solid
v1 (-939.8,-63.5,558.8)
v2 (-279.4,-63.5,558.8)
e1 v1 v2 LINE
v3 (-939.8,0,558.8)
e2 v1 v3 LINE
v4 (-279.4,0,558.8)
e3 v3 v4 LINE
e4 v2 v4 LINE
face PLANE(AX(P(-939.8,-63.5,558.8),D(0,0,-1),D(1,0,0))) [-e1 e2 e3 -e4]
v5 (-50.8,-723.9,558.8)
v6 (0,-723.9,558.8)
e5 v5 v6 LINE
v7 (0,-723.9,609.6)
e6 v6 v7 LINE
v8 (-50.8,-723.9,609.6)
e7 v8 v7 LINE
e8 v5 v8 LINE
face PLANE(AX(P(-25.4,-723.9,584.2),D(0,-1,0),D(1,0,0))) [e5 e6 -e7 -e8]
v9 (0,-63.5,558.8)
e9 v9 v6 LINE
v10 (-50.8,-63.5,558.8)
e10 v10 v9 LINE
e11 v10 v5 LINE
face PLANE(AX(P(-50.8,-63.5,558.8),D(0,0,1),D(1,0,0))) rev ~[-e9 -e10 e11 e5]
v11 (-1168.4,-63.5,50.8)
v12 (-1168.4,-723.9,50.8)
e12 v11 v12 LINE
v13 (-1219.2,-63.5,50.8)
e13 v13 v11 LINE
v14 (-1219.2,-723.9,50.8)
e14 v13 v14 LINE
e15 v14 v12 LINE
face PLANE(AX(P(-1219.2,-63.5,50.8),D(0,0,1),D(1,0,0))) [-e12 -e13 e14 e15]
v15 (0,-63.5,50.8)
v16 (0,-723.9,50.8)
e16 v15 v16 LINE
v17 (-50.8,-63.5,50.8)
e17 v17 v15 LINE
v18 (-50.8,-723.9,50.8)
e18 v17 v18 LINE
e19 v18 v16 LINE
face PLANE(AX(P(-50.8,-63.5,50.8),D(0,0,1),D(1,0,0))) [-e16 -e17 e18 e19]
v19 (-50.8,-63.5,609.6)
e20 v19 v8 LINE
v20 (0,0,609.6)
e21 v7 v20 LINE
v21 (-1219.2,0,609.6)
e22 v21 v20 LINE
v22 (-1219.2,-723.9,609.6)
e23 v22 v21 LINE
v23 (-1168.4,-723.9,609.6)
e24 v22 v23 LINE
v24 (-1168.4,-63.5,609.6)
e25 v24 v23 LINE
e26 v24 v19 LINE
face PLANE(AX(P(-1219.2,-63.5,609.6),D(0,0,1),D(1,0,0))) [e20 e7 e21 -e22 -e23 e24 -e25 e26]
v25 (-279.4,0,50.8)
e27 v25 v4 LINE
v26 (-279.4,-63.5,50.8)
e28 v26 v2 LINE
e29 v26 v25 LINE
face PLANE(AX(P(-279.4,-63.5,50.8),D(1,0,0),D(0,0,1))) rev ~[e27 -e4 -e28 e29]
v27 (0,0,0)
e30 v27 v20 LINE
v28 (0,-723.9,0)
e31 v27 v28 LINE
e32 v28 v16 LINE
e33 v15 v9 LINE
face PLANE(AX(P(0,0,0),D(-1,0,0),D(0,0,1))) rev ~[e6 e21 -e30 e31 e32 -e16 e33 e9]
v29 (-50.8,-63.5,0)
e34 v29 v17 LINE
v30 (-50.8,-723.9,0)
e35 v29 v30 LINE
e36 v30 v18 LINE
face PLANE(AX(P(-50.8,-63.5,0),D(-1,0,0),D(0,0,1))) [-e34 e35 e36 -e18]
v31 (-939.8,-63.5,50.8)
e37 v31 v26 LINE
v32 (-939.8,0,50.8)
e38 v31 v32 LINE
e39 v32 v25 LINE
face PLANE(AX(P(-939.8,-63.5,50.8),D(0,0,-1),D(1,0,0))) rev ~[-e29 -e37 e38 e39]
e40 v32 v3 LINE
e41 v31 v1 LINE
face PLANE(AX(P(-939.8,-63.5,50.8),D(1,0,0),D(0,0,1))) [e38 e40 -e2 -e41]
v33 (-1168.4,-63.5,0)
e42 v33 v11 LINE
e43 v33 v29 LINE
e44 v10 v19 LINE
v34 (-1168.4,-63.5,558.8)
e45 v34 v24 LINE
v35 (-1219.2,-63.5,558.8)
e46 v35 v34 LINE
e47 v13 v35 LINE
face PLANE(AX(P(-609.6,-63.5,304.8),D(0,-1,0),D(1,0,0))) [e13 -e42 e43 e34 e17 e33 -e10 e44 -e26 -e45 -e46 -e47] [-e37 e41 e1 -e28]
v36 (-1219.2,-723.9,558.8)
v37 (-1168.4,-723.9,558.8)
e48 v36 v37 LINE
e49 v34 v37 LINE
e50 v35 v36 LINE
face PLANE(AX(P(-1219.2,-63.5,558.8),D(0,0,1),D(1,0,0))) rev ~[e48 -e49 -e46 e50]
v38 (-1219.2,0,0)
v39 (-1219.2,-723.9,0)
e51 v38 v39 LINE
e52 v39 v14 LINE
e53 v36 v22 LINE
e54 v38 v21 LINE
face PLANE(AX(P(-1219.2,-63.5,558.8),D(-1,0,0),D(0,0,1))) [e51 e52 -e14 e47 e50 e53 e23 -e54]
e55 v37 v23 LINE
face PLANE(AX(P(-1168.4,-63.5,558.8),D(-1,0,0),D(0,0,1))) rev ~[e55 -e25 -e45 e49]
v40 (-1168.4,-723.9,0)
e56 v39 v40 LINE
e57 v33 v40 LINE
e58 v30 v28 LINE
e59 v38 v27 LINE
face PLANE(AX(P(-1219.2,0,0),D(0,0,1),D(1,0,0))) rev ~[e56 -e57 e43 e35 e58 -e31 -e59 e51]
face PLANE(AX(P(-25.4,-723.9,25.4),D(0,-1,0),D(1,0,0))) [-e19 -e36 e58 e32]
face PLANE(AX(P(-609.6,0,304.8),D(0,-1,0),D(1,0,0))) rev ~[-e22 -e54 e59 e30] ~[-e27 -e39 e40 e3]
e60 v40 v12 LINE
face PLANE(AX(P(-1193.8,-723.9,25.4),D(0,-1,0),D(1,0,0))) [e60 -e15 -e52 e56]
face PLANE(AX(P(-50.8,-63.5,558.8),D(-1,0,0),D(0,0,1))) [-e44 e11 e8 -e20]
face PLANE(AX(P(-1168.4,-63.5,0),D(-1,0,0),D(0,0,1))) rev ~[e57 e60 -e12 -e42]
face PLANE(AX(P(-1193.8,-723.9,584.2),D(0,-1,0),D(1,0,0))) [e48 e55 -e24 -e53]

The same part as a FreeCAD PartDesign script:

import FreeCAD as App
import Part
import Sketcher
Q = App.Units.Quantity


def add_polygon(sketch, points):
    """Adds a closed chain of lines whose ends are joined by coincident constraints."""
    first, n = sketch.GeometryCount, len(points)
    for a, b in zip(points, points[1:] + points[:1]):
        sketch.addGeometry(Part.LineSegment(App.Vector(*a, 0), App.Vector(*b, 0)), False)
    for i in range(n):
        sketch.addConstraint(Sketcher.Constraint("Coincident", first + i, 2, first + (i + 1) % n, 1))

doc = App.newDocument("Part")
body = doc.addObject("PartDesign::Body", "Body")

sketch1 = body.newObject("Sketcher::SketchObject", "Sketch")
sketch1.AttachmentSupport = (doc.getObject("XZ_Plane"), [""])
sketch1.MapMode = "FlatFace"
add_polygon(sketch1, [(-1219, 610), (-1219, 0), (0, 0), (0, 610)])
sketch1.addConstraint([
    Sketcher.Constraint("Vertical", 0),
    Sketcher.Constraint("Horizontal", 1),
    Sketcher.Constraint("Vertical", 2),
    Sketcher.Constraint("Horizontal", 3),
    Sketcher.Constraint("Coincident", 1, 2, -1, 1),
    Sketcher.Constraint("DistanceX", 1, 1, 1, 2, Q("48 in")),
    Sketcher.Constraint("DistanceY", 0, 2, 0, 1, Q("24 in")),
])
pad1 = body.newObject("PartDesign::Pad", "Pad")
pad1.Profile = sketch1
pad1.Length = Q("2.5 in")

sketch2 = body.newObject("Sketcher::SketchObject", "Sketch001")
sketch2.AttachmentSupport = (doc.getObject("XZ_Plane"), [""])
sketch2.MapMode = "FlatFace"
sketch2.AttachmentOffset = App.Placement(App.Vector(0, 0, 2.5 * 25.4), App.Rotation())
add_polygon(sketch2, [(-940, 559), (-940, 51), (-279, 51), (-279, 559)])
sketch2.addConstraint([
    Sketcher.Constraint("Vertical", 0),
    Sketcher.Constraint("Horizontal", 1),
    Sketcher.Constraint("Vertical", 2),
    Sketcher.Constraint("Horizontal", 3),
    Sketcher.Constraint("DistanceX", 1, 1, 1, 2, Q("26 in")),
    Sketcher.Constraint("DistanceY", 0, 2, 0, 1, Q("20 in")),
    Sketcher.Constraint("DistanceX", 0, 2, -1, 1, Q("37 in")),
    Sketcher.Constraint("DistanceY", -1, 1, 0, 2, Q("2 in")),
])
pocket1 = body.newObject("PartDesign::Pocket", "Pocket")
pocket1.Profile = sketch2
pocket1.Length = Q("4.5 in")

sketch3 = body.newObject("Sketcher::SketchObject", "Sketch002")
sketch3.AttachmentSupport = (doc.getObject("XZ_Plane"), [""])
sketch3.MapMode = "FlatFace"
sketch3.AttachmentOffset = App.Placement(App.Vector(0, 0, 2.5 * 25.4), App.Rotation())
add_polygon(sketch3, [(-1219, 610), (-1219, 559), (-1168, 559), (-1168, 610)])
add_polygon(sketch3, [(-1219, 51), (-1219, 0), (-1168, 0), (-1168, 51)])
add_polygon(sketch3, [(-51, 51), (-51, 0), (0, 0), (0, 51)])
add_polygon(sketch3, [(-51, 610), (-51, 559), (0, 559), (0, 610)])
sketch3.addConstraint([
    Sketcher.Constraint("Vertical", 0),
    Sketcher.Constraint("Horizontal", 1),
    Sketcher.Constraint("Vertical", 2),
    Sketcher.Constraint("Horizontal", 3),
    Sketcher.Constraint("Vertical", 4),
    Sketcher.Constraint("Horizontal", 5),
    Sketcher.Constraint("Vertical", 6),
    Sketcher.Constraint("Horizontal", 7),
    Sketcher.Constraint("Vertical", 8),
    Sketcher.Constraint("Horizontal", 9),
    Sketcher.Constraint("Vertical", 10),
    Sketcher.Constraint("Horizontal", 11),
    Sketcher.Constraint("Vertical", 12),
    Sketcher.Constraint("Horizontal", 13),
    Sketcher.Constraint("Vertical", 14),
    Sketcher.Constraint("Horizontal", 15),
    Sketcher.Constraint("Coincident", 9, 2, -1, 1),
    Sketcher.Constraint("PointOnObject", 4, 2, -1),
    Sketcher.Constraint("PointOnObject", 13, 2, -2),
    Sketcher.Constraint("Horizontal", 7, 2, 10, 2),
    Sketcher.Constraint("Horizontal", 1, 2, 12, 2),
    Sketcher.Constraint("Horizontal", 3, 2, 14, 2),
    Sketcher.Constraint("Vertical", 3, 2, 4, 2),
    Sketcher.Constraint("Vertical", 2, 2, 5, 2),
    Sketcher.Constraint("Vertical", 11, 2, 12, 2),
    Sketcher.Constraint("Equal", 7, 9),
    Sketcher.Constraint("Equal", 15, 0),
    Sketcher.Constraint("Equal", 2, 4),
    Sketcher.Constraint("DistanceX", 1, 1, 1, 2, Q("2 in")),
    Sketcher.Constraint("DistanceX", 0, 2, -1, 1, Q("48 in")),
    Sketcher.Constraint("DistanceY", -1, 1, 0, 2, Q("22 in")),
])
pad2 = body.newObject("PartDesign::Pad", "Pad001")
pad2.Profile = sketch3
pad2.Length = Q("26 in")

doc.recompute()
